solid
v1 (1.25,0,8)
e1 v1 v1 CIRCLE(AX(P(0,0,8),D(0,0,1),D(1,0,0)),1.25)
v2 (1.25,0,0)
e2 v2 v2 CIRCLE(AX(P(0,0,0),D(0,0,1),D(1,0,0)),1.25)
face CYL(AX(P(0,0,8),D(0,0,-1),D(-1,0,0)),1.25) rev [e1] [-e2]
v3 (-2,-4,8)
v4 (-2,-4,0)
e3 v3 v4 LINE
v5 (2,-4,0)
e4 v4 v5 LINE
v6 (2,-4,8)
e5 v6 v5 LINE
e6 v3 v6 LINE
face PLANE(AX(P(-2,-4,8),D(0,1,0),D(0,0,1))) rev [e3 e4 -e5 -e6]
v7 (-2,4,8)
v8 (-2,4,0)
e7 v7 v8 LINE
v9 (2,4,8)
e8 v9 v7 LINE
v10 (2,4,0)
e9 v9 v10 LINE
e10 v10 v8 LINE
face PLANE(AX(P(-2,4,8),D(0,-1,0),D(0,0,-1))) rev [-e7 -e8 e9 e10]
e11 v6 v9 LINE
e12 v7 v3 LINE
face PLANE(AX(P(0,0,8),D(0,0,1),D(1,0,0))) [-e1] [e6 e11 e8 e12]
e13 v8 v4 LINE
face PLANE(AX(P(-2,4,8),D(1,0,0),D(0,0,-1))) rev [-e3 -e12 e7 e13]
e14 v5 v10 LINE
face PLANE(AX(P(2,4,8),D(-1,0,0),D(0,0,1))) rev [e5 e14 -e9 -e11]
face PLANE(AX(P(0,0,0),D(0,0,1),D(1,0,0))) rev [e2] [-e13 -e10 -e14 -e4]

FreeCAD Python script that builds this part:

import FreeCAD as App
import Part
import Sketcher
Q = App.Units.Quantity


def add_polygon(sketch, points):
    """Adds a closed chain of lines whose ends are joined by coincident constraints."""
    first, n = sketch.GeometryCount, len(points)
    for a, b in zip(points, points[1:] + points[:1]):
        sketch.addGeometry(Part.LineSegment(App.Vector(*a, 0), App.Vector(*b, 0)), False)
    for i in range(n):
        sketch.addConstraint(Sketcher.Constraint("Coincident", first + i, 2, first + (i + 1) % n, 1))

doc = App.newDocument("Part")
body = doc.addObject("PartDesign::Body", "Body")

# Sketch on XY plane
sketch1 = body.newObject("Sketcher::SketchObject", "Sketch")
sketch1.AttachmentSupport = (doc.getObject("XY_Plane"), [""])
sketch1.MapMode = "FlatFace"
add_polygon(sketch1, [(-2, 4), (-2, -4), (2, -4), (2, 4)])  # lines 0-3
sketch1.addGeometry(Part.Circle(App.Vector(0, 0, 0), App.Vector(0, 0, 1), 1.25), False)  # 4
sketch1.addConstraint([
    Sketcher.Constraint("Vertical", 0),
    Sketcher.Constraint("Horizontal", 1),
    Sketcher.Constraint("Vertical", 2),
    Sketcher.Constraint("Horizontal", 3),
    Sketcher.Constraint("Coincident", 4, 3, -1, 1),
    Sketcher.Constraint("Symmetric", 0, 2, 2, 2, -1, 1),
    Sketcher.Constraint("Diameter", 4, Q("2.5 mm")),
    Sketcher.Constraint("DistanceX", 1, 1, 1, 2, Q("4 mm")),
    Sketcher.Constraint("DistanceY", 0, 2, 0, 1, Q("8 mm")),
])
pad1 = body.newObject("PartDesign::Pad", "Pad")
pad1.Profile = sketch1
pad1.Length = 8

doc.recompute()
